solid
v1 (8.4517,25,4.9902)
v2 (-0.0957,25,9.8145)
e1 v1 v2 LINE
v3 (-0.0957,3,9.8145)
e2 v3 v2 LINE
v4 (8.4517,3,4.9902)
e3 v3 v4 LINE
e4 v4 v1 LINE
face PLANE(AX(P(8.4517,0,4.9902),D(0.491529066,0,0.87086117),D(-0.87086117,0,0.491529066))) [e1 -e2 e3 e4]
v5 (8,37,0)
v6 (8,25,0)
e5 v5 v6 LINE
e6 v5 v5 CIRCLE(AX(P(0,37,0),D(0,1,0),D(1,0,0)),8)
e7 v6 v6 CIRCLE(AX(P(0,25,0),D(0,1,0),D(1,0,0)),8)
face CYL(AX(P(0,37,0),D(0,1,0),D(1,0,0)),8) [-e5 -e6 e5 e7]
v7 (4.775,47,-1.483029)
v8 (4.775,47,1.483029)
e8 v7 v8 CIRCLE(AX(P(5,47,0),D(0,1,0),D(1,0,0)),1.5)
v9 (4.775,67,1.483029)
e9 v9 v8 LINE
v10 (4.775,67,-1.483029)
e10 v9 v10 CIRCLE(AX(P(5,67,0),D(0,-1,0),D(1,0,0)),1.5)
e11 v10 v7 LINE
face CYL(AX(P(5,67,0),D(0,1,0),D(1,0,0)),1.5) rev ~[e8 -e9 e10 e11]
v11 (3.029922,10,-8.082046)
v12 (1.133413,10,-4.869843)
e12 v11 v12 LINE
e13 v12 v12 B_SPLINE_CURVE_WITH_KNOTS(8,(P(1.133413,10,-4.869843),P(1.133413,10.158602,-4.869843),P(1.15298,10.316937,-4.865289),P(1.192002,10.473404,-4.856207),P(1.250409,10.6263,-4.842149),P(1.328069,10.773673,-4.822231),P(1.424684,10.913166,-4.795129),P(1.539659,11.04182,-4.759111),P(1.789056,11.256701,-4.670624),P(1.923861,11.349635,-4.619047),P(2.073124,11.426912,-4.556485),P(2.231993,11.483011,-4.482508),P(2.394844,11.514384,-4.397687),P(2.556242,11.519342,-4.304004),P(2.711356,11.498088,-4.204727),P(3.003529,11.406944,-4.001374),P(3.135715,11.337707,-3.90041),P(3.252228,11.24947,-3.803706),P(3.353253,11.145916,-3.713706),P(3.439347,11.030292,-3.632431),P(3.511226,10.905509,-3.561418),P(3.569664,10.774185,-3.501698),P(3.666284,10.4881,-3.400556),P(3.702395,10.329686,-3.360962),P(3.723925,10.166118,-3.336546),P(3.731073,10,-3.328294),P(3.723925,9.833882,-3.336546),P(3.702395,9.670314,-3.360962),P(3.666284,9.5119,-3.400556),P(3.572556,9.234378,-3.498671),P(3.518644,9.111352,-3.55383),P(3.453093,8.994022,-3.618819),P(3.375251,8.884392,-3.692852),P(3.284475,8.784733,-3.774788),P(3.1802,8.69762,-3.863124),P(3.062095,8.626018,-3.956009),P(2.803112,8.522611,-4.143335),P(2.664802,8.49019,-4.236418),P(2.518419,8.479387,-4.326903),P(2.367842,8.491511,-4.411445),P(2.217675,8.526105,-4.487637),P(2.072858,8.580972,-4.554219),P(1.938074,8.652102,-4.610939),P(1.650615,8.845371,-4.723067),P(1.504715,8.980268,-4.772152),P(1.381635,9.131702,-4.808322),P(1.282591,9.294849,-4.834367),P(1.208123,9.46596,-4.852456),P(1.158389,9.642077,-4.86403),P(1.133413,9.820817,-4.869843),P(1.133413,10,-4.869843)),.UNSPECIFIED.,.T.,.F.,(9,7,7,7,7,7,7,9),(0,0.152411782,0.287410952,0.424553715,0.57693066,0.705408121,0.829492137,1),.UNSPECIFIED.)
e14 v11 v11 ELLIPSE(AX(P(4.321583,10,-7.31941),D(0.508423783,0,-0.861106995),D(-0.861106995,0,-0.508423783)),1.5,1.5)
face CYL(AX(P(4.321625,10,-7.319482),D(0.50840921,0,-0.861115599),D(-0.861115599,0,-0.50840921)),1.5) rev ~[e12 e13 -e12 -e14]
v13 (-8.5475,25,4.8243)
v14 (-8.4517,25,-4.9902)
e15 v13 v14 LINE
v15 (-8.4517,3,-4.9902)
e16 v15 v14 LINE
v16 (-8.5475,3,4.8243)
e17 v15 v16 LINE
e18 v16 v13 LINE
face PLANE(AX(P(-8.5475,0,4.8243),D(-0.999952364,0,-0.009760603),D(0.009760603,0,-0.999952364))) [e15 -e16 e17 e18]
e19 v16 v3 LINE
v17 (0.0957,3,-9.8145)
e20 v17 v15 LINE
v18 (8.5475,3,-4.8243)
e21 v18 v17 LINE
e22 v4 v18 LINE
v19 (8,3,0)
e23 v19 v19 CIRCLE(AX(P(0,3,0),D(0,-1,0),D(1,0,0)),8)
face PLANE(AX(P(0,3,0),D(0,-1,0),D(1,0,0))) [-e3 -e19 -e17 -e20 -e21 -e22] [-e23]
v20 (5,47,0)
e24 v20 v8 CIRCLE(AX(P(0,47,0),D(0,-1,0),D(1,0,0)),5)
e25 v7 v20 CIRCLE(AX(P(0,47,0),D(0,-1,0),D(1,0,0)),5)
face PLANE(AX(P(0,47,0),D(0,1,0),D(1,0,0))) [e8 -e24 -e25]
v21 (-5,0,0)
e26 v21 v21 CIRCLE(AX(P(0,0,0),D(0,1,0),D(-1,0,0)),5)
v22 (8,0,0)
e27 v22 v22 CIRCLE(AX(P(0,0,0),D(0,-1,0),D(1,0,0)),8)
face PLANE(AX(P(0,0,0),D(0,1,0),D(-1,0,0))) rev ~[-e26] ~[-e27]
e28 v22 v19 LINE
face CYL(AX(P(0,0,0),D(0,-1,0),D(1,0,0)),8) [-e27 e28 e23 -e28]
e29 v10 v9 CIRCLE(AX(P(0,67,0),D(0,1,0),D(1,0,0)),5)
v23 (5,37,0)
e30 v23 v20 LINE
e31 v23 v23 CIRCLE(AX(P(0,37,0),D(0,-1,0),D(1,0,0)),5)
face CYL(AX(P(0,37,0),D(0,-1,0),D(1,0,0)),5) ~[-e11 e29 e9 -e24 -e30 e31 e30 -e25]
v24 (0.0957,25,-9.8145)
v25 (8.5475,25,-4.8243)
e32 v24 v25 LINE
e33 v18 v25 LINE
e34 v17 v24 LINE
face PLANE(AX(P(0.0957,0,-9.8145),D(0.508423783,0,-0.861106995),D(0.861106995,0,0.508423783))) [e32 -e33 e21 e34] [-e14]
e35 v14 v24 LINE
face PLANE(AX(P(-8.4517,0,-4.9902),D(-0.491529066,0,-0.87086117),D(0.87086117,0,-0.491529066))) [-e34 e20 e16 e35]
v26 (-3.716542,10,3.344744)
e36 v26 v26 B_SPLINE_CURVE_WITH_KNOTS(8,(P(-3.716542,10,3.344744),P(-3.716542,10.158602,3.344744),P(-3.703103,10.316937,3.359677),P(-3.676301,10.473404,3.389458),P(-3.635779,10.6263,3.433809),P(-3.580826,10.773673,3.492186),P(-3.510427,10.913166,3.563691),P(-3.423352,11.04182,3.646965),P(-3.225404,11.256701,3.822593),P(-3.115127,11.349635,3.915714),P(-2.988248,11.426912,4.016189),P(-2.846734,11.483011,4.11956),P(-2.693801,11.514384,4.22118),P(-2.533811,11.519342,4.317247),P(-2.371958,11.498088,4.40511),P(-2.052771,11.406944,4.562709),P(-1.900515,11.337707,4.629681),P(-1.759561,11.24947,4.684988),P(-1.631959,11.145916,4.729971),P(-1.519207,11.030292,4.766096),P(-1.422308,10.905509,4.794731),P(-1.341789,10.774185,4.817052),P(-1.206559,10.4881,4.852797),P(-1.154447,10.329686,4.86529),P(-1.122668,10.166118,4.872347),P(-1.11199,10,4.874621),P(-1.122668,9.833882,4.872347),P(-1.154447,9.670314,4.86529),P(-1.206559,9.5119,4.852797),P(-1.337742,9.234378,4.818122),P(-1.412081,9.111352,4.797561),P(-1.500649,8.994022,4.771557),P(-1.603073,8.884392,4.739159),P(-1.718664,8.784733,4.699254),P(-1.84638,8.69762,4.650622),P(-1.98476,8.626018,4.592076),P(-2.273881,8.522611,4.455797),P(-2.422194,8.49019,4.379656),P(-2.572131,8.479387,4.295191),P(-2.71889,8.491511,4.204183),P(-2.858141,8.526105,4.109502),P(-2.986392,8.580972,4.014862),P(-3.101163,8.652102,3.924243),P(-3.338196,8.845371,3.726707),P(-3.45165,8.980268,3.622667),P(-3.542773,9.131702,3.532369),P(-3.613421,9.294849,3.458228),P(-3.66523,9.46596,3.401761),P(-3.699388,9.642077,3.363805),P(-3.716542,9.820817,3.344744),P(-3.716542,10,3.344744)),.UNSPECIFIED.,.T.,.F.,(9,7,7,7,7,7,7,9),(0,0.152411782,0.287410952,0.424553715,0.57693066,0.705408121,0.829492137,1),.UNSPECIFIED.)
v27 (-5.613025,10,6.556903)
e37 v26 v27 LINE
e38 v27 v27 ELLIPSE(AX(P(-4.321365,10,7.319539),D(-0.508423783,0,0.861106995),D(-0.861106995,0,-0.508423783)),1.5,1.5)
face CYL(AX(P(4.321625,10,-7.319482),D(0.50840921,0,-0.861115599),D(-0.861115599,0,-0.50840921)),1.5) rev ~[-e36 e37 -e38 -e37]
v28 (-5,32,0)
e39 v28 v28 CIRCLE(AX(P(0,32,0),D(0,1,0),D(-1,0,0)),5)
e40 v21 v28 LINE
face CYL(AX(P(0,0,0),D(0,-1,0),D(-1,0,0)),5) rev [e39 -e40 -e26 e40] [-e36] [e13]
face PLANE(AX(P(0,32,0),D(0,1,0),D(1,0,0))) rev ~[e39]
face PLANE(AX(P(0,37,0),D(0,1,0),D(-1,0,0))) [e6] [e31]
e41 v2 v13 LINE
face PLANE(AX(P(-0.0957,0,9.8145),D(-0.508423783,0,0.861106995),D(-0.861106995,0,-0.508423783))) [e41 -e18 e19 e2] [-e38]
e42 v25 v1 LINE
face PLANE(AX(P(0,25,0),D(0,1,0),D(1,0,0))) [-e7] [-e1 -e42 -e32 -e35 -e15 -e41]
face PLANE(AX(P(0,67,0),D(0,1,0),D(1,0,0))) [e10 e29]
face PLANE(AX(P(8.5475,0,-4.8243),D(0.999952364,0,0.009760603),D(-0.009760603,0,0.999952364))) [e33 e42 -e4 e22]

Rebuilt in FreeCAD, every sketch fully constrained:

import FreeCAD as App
import Part
import Sketcher
Q = App.Units.Quantity

doc = App.newDocument("Part")
body = doc.addObject("PartDesign::Body", "Body")

# Sketch on XZ plane
sketch1 = body.newObject("Sketcher::SketchObject", "Sketch")
sketch1.AttachmentSupport = (doc.getObject("XZ_Plane"), [""])
sketch1.MapMode = "FlatFace"
sketch1.addGeometry([
    Part.LineSegment(App.Vector(-8, -5, 0), App.Vector(-9, 5, 0)),  # 0
    Part.LineSegment(App.Vector(-9, 5, 0), App.Vector(0, 10, 0)),  # 1
    Part.LineSegment(App.Vector(0, 10, 0), App.Vector(8, 5, 0)),  # 2
    Part.LineSegment(App.Vector(8, 5, 0), App.Vector(9, -5, 0)),  # 3
    Part.LineSegment(App.Vector(9, -5, 0), App.Vector(0, -10, 0)),  # 4
    Part.LineSegment(App.Vector(0, -10, 0), App.Vector(-8, -5, 0)),  # 5
    Part.Circle(App.Vector(0, 0, 0), App.Vector(0, 0, 1), 5),  # 6
], False)
sketch1.addConstraint([
    Sketcher.Constraint("Coincident", 0, 2, 1, 1),
    Sketcher.Constraint("Coincident", 1, 2, 2, 1),
    Sketcher.Constraint("Coincident", 2, 2, 3, 1),
    Sketcher.Constraint("Coincident", 3, 2, 4, 1),
    Sketcher.Constraint("Coincident", 4, 2, 5, 1),
    Sketcher.Constraint("Coincident", 5, 2, 0, 1),
    Sketcher.Constraint("Coincident", 6, 3, -1, 1),
    Sketcher.Constraint("Symmetric", 0, 2, 3, 2, -1, 1),
    Sketcher.Constraint("Symmetric", 1, 2, 4, 2, -1, 1),
    Sketcher.Constraint("Symmetric", 2, 2, 5, 2, -1, 1),
    Sketcher.Constraint("Equal", 0, 1),
    Sketcher.Constraint("Equal", 1, 2),
    Sketcher.Constraint("Diameter", 6, 10.0),
    Sketcher.Constraint("Angle", 0, Q("90.5593 deg")),
    Sketcher.Constraint("Angle", 1, Q("30.559 deg")),
    Sketcher.Constraint("Angle", 2, Q("-29.4411 deg")),
    Sketcher.Constraint("Distance", 0, 9.815),
])
pad1 = body.newObject("PartDesign::Pad", "Pad")
pad1.Profile = sketch1
pad1.Length = 37
pad1.Reversed = True

# Sketch on XZ plane
sketch2 = body.newObject("Sketcher::SketchObject", "Sketch001")
sketch2.AttachmentSupport = (doc.getObject("XZ_Plane"), [""])
sketch2.MapMode = "FlatFace"
sketch2.AttachmentOffset = App.Placement(App.Vector(0, 0, -37), App.Rotation())
sketch2.addGeometry([
    Part.Circle(App.Vector(0, 0, 0), App.Vector(0, 0, 1), 13),
    Part.Circle(App.Vector(0, 0, 0), App.Vector(0, 0, 1), 8),
], False)
sketch2.addConstraint([
    Sketcher.Constraint("Coincident", 0, 3, -1, 1),
    Sketcher.Constraint("Coincident", 1, 3, -1, 1),
    Sketcher.Constraint("Diameter", 1, 16.0),
    Sketcher.Constraint("Diameter", 0, 26.0),
])
pocket1 = body.newObject("PartDesign::Pocket", "Pocket")
pocket1.Profile = sketch2
pocket1.Length = 12
pocket1.Reversed = True

# Sketch on XZ plane
sketch3 = body.newObject("Sketcher::SketchObject", "Sketch002")
sketch3.AttachmentSupport = (doc.getObject("XZ_Plane"), [""])
sketch3.MapMode = "FlatFace"
sketch3.addGeometry([
    Part.Circle(App.Vector(0, 0, 0), App.Vector(0, 0, 1), 13),
    Part.Circle(App.Vector(0, 0, 0), App.Vector(0, 0, 1), 8),
], False)
sketch3.addConstraint([
    Sketcher.Constraint("Coincident", 0, 3, -1, 1),
    Sketcher.Constraint("Coincident", 1, 3, -1, 1),
    Sketcher.Constraint("Diameter", 1, 16.0),
    Sketcher.Constraint("Diameter", 0, 26.0),
])
pocket2 = body.newObject("PartDesign::Pocket", "Pocket001")
pocket2.Profile = sketch3
pocket2.Length = 3

# Sketch on an angled plane
sketch4 = body.newObject("Sketcher::SketchObject", "Sketch003")
sketch4.Placement = App.Placement(App.Vector(0.0957, 3, -9.8145), App.Rotation(App.Vector(-0.861115599, 0, -0.50840921), App.Vector(0, 1, 0), App.Vector(0.50840921, 0, -0.861115599), "ZXY"))
sketch4.addGeometry(Part.Circle(App.Vector(-4.9, 7, 0), App.Vector(0, 0, 1), 1.5), False)
sketch4.addConstraint([
    Sketcher.Constraint("Diameter", 0, 3.0),
    Sketcher.Constraint("DistanceY", -1, 1, 0, 3, 7.0),
    Sketcher.Constraint("DistanceX", 0, 3, -1, 1, 4.9075),
])
pocket3 = body.newObject("PartDesign::Pocket", "Pocket002")
pocket3.Profile = sketch4
pocket3.Type = "ThroughAll"

# Sketch on XZ plane
sketch5 = body.newObject("Sketcher::SketchObject", "Sketch004")
sketch5.AttachmentSupport = (doc.getObject("XZ_Plane"), [""])
sketch5.MapMode = "FlatFace"
sketch5.AttachmentOffset = App.Placement(App.Vector(0, 0, -37), App.Rotation())
sketch5.addGeometry(Part.Circle(App.Vector(0, 0, 0), App.Vector(0, 0, 1), 5), False)
sketch5.addConstraint([
    Sketcher.Constraint("Coincident", 0, 3, -1, 1),
    Sketcher.Constraint("Diameter", 0, 10.0),
])
pad2 = body.newObject("PartDesign::Pad", "Pad001")
pad2.Profile = sketch5
pad2.Type = "TwoLengths"
pad2.Length = 30
pad2.Length2 = 5
pad2.Reversed = True

# Sketch on XZ plane
sketch6 = body.newObject("Sketcher::SketchObject", "Sketch005")
sketch6.AttachmentSupport = (doc.getObject("XZ_Plane"), [""])
sketch6.MapMode = "FlatFace"
sketch6.AttachmentOffset = App.Placement(App.Vector(0, 0, -67), App.Rotation())
sketch6.addGeometry(Part.Circle(App.Vector(5, 0, 0), App.Vector(0, 0, 1), 1.5), False)
sketch6.addConstraint([
    Sketcher.Constraint("PointOnObject", 0, 3, -1),
    Sketcher.Constraint("Diameter", 0, 3.0),
    Sketcher.Constraint("DistanceX", -1, 1, 0, 3, 5.0),
])
pocket4 = body.newObject("PartDesign::Pocket", "Pocket003")
pocket4.Profile = sketch6
pocket4.Length = 20
pocket4.Reversed = True

doc.recompute()
